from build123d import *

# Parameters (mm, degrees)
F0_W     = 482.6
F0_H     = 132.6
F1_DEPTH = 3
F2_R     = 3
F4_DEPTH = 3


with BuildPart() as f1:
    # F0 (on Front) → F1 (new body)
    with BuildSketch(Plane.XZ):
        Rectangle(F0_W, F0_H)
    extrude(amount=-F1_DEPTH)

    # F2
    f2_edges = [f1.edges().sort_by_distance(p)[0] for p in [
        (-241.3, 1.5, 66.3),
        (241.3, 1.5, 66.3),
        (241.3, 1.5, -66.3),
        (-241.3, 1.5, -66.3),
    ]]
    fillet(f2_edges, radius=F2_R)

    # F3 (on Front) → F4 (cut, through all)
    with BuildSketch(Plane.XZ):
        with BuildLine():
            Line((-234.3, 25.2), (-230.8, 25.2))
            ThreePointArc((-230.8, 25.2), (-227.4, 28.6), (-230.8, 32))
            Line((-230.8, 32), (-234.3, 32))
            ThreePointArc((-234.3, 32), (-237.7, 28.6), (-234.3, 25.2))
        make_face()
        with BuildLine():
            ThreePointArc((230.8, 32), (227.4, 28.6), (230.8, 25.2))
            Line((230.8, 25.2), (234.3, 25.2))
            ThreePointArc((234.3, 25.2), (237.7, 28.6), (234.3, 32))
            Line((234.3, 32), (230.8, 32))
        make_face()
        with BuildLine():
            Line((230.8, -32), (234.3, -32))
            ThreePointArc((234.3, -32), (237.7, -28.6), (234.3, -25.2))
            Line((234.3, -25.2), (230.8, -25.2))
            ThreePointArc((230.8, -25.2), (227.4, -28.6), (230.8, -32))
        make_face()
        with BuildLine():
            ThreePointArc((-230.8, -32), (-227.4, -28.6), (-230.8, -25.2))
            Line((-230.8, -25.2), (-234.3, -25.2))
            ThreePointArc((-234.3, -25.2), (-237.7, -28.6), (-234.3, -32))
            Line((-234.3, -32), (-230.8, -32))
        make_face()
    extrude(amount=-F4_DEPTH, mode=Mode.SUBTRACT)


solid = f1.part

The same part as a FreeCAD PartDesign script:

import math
import FreeCAD as App
import Part
import Sketcher

V = App.Vector


def edges_at(feature, points):
    """Names of the edges that pass closest to the given points."""
    edges = feature.Shape.Edges
    near = lambda p: min(range(len(edges)), key=lambda i: edges[i].distToShape(Part.Vertex(*p))[0])
    return sorted({f"Edge{near(p) + 1}" for p in points})


def add_polygon(sketch, points):
    """Adds a closed chain of lines whose ends are joined by coincident constraints."""
    first, n = sketch.GeometryCount, len(points)
    for a, b in zip(points, points[1:] + points[:1]):
        sketch.addGeometry(Part.LineSegment(App.Vector(*a, 0), App.Vector(*b, 0)), False)
    for i in range(n):
        sketch.addConstraint(Sketcher.Constraint("Coincident", first + i, 2, first + (i + 1) % n, 1))

doc = App.newDocument("Part")
body = doc.addObject("PartDesign::Body", "Body")

sketch1 = body.newObject("Sketcher::SketchObject", "Sketch")
sketch1.AttachmentSupport = (doc.getObject("XZ_Plane"), [""])
sketch1.MapMode = "FlatFace"
add_polygon(sketch1, [(-241, 66), (-241, -66), (241, -66), (241, 66)])
sketch1.addConstraint([
    Sketcher.Constraint("Vertical", 0),
    Sketcher.Constraint("Horizontal", 1),
    Sketcher.Constraint("Vertical", 2),
    Sketcher.Constraint("Horizontal", 3),
    Sketcher.Constraint("Symmetric", 0, 2, 2, 2, -1, 1),
    Sketcher.Constraint("DistanceX", 1, 1, 1, 2, 482.6),
    Sketcher.Constraint("DistanceY", 0, 2, 0, 1, 132.6),
])
pad1 = body.newObject("PartDesign::Pad", "Pad")
pad1.Profile = sketch1
pad1.Length = 3
pad1.Reversed = True
doc.recompute()

fillet = body.newObject("PartDesign::Fillet", "Fillet")
fillet.Base = (pad1, edges_at(pad1, [
    (-241.3, 1.5, 66.3),
    (241.3, 1.5, 66.3),
    (241.3, 1.5, -66.3),
    (-241.3, 1.5, -66.3),
]))
fillet.Radius = 3

sketch2 = body.newObject("Sketcher::SketchObject", "Sketch001")
sketch2.AttachmentSupport = (doc.getObject("XZ_Plane"), [""])
sketch2.MapMode = "FlatFace"
sketch2.addGeometry([
    Part.LineSegment(V(-234.3, 25.2, 0), V(-230.8, 25.2, 0)),
    Part.ArcOfCircle(Part.Circle(V(-230.8, 28.6, 0), V(0, 0, 1), 3.4), math.radians(-90), math.radians(90)),
    Part.LineSegment(V(-230.8, 32, 0), V(-234.3, 32, 0)),
    Part.ArcOfCircle(Part.Circle(V(-234.3, 28.6, 0), V(0, 0, 1), 3.4), math.radians(90), math.radians(270)),
    Part.ArcOfCircle(Part.Circle(V(230.8, 28.6, 0), V(0, 0, 1), 3.4), math.radians(90), math.radians(270)),
    Part.LineSegment(V(230.8, 25.2, 0), V(234.3, 25.2, 0)),
    Part.ArcOfCircle(Part.Circle(V(234.3, 28.6, 0), V(0, 0, 1), 3.4), math.radians(-90), math.radians(90)),
    Part.LineSegment(V(234.3, 32, 0), V(230.8, 32, 0)),
    Part.LineSegment(V(230.8, -32, 0), V(234.3, -32, 0)),
    Part.ArcOfCircle(Part.Circle(V(234.3, -28.6, 0), V(0, 0, 1), 3.4), math.radians(-90), math.radians(90)),
    Part.LineSegment(V(234.3, -25.2, 0), V(230.8, -25.2, 0)),
    Part.ArcOfCircle(Part.Circle(V(230.8, -28.6, 0), V(0, 0, 1), 3.4), math.radians(90), math.radians(270)),
    Part.ArcOfCircle(Part.Circle(V(-230.8, -28.6, 0), V(0, 0, 1), 3.4), math.radians(-90), math.radians(90)),
    Part.LineSegment(V(-230.8, -25.2, 0), V(-234.3, -25.2, 0)),
    Part.ArcOfCircle(Part.Circle(V(-234.3, -28.6, 0), V(0, 0, 1), 3.4), math.radians(90), math.radians(270)),
    Part.LineSegment(V(-234.3, -32, 0), V(-230.8, -32, 0)),
], False)
sketch2.addConstraint([
    Sketcher.Constraint("Tangent", 0, 2, 1, 1),
    Sketcher.Constraint("Tangent", 1, 2, 2, 1),
    Sketcher.Constraint("Tangent", 2, 2, 3, 1),
    Sketcher.Constraint("Tangent", 3, 2, 0, 1),
    Sketcher.Constraint("Tangent", 4, 2, 5, 1),
    Sketcher.Constraint("Tangent", 5, 2, 6, 1),
    Sketcher.Constraint("Tangent", 6, 2, 7, 1),
    Sketcher.Constraint("Tangent", 7, 2, 4, 1),
    Sketcher.Constraint("Tangent", 8, 2, 9, 1),
    Sketcher.Constraint("Tangent", 9, 2, 10, 1),
    Sketcher.Constraint("Tangent", 10, 2, 11, 1),
    Sketcher.Constraint("Tangent", 11, 2, 8, 1),
    Sketcher.Constraint("Tangent", 12, 2, 13, 1),
    Sketcher.Constraint("Tangent", 13, 2, 14, 1),
    Sketcher.Constraint("Tangent", 14, 2, 15, 1),
    Sketcher.Constraint("Tangent", 15, 2, 12, 1),
    Sketcher.Constraint("Horizontal", 0),
    Sketcher.Constraint("Horizontal", 2),
    Sketcher.Constraint("Horizontal", 5),
    Sketcher.Constraint("Horizontal", 7),
    Sketcher.Constraint("Horizontal", 8),
    Sketcher.Constraint("Horizontal", 10),
    Sketcher.Constraint("Horizontal", 13),
    Sketcher.Constraint("Horizontal", 15),
    Sketcher.Constraint("Equal", 3, 4),
    Sketcher.Constraint("Equal", 6, 9),
    Sketcher.Constraint("Equal", 11, 12),
    Sketcher.Constraint("Symmetric", 3, 3, 9, 3, -1, 1),
    Sketcher.Constraint("Symmetric", 4, 3, 12, 3, -1, 1),
    Sketcher.Constraint("Symmetric", 1, 3, 4, 3, -2),
    Sketcher.Constraint("Vertical", 6, 3, 9, 3),
    Sketcher.Constraint("Vertical", 4, 3, 11, 3),
    Sketcher.Constraint("Vertical", 3, 3, 14, 3),
    Sketcher.Constraint("Radius", 1, 3.4),
    Sketcher.Constraint("DistanceX", 0, 1, 0, 2, 3.5),
    Sketcher.Constraint("DistanceY", -1, 1, 1, 2, 32.0),
    Sketcher.Constraint("DistanceX", 1, 3, -1, 1, 230.8),
])
pocket1 = body.newObject("PartDesign::Pocket", "Pocket")
pocket1.Profile = sketch2
pocket1.Type = "ThroughAll"

doc.recompute()
